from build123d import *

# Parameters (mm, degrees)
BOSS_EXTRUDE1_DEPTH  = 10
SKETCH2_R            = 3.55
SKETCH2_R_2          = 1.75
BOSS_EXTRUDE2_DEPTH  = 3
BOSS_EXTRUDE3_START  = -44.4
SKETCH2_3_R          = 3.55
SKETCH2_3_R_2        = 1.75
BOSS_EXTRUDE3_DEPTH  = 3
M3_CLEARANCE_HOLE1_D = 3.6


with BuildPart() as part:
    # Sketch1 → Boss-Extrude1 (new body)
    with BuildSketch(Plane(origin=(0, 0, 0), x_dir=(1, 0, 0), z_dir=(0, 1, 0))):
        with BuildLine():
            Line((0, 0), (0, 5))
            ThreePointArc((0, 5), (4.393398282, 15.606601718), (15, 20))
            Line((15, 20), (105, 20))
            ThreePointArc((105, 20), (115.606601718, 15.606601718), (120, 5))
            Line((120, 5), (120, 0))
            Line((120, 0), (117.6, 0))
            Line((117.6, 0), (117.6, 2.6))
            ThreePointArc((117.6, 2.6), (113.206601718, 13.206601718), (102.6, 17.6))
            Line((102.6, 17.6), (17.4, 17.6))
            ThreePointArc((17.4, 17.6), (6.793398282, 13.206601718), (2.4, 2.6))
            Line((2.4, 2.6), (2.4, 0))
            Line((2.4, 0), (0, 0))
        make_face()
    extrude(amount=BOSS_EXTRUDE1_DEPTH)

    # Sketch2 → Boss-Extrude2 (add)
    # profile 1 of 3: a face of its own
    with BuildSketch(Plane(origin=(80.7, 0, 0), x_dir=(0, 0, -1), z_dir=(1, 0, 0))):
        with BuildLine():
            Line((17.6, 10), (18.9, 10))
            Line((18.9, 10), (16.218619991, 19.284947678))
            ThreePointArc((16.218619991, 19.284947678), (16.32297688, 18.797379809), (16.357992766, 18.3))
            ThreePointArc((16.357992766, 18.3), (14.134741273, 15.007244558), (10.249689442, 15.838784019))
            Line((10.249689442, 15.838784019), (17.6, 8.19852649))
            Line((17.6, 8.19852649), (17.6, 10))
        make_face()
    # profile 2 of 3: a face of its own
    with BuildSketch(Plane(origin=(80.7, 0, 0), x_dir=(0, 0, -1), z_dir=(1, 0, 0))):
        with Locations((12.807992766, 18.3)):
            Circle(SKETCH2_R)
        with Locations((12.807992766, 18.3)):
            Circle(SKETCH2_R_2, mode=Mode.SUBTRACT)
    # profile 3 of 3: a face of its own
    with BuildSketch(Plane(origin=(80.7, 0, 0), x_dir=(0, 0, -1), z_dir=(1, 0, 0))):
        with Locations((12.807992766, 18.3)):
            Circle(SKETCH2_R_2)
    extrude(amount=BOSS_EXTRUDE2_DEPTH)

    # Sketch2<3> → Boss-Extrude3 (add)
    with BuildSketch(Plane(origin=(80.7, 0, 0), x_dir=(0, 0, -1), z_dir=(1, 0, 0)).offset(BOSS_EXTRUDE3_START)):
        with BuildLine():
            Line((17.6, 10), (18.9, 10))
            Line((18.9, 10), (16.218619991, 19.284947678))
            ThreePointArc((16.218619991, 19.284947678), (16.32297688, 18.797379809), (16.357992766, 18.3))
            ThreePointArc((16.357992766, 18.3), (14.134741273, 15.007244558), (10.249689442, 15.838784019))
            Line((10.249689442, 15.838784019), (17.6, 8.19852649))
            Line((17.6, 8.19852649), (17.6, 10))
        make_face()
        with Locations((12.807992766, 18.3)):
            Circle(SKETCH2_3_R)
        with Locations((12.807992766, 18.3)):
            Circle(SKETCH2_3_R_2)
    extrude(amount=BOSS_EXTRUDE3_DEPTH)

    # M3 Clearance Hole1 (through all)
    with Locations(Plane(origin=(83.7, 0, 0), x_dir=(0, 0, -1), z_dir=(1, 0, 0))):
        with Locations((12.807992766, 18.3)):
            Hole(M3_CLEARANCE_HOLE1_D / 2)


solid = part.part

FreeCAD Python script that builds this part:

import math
import FreeCAD as App
import Part
import Sketcher

V = App.Vector
Q = App.Units.Quantity

doc = App.newDocument("Part")
params = doc.addObject("Spreadsheet::Sheet", "Params")
for row, (alias, value) in enumerate([
    ("sketch1_radius", "15 mm"),
    ("sketch1_width", "90 mm"),
    ("sketch1_height", "5 mm"),
    ("sketch1_width2", "2.4 mm"),
    ("sketch1_height2", "2.6 mm"),
    ("pad1_length", "10 mm"),
    ("sketch2_radius", "3.55 mm"),
    ("sketch2_height", "1.3 mm"),
    ("pad2_length", "3 mm"),
    ("sketch3_radius", "3.55 mm"),
    ("sketch3_height", "1.3 mm"),
    ("pad3_length", "3 mm"),
    ("sketch4_diameter", "3.6 mm"),
    ("hole_diameter", "3.6 mm"),
], start=1):
    params.set(f"A{row}", alias)
    params.set(f"B{row}", "=" + value)
    params.setAlias(f"B{row}", alias)

body = doc.addObject("PartDesign::Body", "Body")

sketch1 = body.newObject("Sketcher::SketchObject", "Sketch")
sketch1.AttachmentSupport = (doc.getObject("XZ_Plane"), [""])
sketch1.MapMode = "FlatFace"
sketch1.addGeometry([
    Part.LineSegment(V(0, -5, 0), V(0, 0, 0)),
    Part.LineSegment(V(0, 0, 0), V(2.4, 0, 0)),
    Part.LineSegment(V(2.4, 0, 0), V(2.4, -2.6, 0)),
    Part.ArcOfCircle(Part.Circle(V(17.4, -2.6, 0), V(0, 0, 1), 15), math.radians(180), math.radians(270)),
    Part.LineSegment(V(17.4, -17.6, 0), V(102.6, -17.6, 0)),
    Part.ArcOfCircle(Part.Circle(V(102.6, -2.6, 0), V(0, 0, 1), 15), math.radians(-90), math.radians(0)),
    Part.LineSegment(V(117.6, -2.6, 0), V(117.6, 0, 0)),
    Part.LineSegment(V(117.6, 0, 0), V(120, 0, 0)),
    Part.LineSegment(V(120, 0, 0), V(120, -5, 0)),
    Part.ArcOfCircle(Part.Circle(V(105, -5, 0), V(0, 0, 1), 15), math.radians(-90), math.radians(0)),
    Part.LineSegment(V(105, -20, 0), V(15, -20, 0)),
    Part.ArcOfCircle(Part.Circle(V(15, -5, 0), V(0, 0, 1), 15), math.radians(180), math.radians(270)),
], False)
sketch1.addConstraint([
    Sketcher.Constraint("Coincident", 0, 2, 1, 1),
    Sketcher.Constraint("Coincident", 1, 2, 2, 1),
    Sketcher.Constraint("Tangent", 2, 2, 3, 1),
    Sketcher.Constraint("Tangent", 3, 2, 4, 1),
    Sketcher.Constraint("Tangent", 4, 2, 5, 1),
    Sketcher.Constraint("Tangent", 5, 2, 6, 1),
    Sketcher.Constraint("Coincident", 6, 2, 7, 1),
    Sketcher.Constraint("Coincident", 7, 2, 8, 1),
    Sketcher.Constraint("Tangent", 8, 2, 9, 2),
    Sketcher.Constraint("Tangent", 9, 1, 10, 1),
    Sketcher.Constraint("Tangent", 10, 2, 11, 2),
    Sketcher.Constraint("Tangent", 11, 1, 0, 1),
    Sketcher.Constraint("Vertical", 0),
    Sketcher.Constraint("Horizontal", 1),
    Sketcher.Constraint("Vertical", 2),
    Sketcher.Constraint("Horizontal", 4),
    Sketcher.Constraint("Vertical", 6),
    Sketcher.Constraint("Horizontal", 7),
    Sketcher.Constraint("Vertical", 8),
    Sketcher.Constraint("Horizontal", 10),
    Sketcher.Constraint("Coincident", 0, 2, -1, 1),
    Sketcher.Constraint("Equal", 3, 5),
    Sketcher.Constraint("Equal", 5, 9),
    Sketcher.Constraint("Equal", 9, 11),
    Sketcher.Constraint("PointOnObject", 6, 2, -1),
    Sketcher.Constraint("Equal", 1, 7),
    Sketcher.Constraint("Radius", 3, Q("15 mm")),
    Sketcher.Constraint("DistanceX", 10, 2, 10, 1, Q("90 mm")),
    Sketcher.Constraint("DistanceY", 0, 1, 0, 2, Q("5 mm")),
    Sketcher.Constraint("DistanceX", 1, 1, 1, 2, Q("2.4 mm")),
    Sketcher.Constraint("DistanceY", 2, 2, 2, 1, Q("2.6 mm")),
])
sketch1.setExpression("Constraints[26]", "Params.sketch1_radius")
sketch1.setExpression("Constraints[27]", "Params.sketch1_width")
sketch1.setExpression("Constraints[28]", "Params.sketch1_height")
sketch1.setExpression("Constraints[29]", "Params.sketch1_width2")
sketch1.setExpression("Constraints[30]", "Params.sketch1_height2")
pad1 = body.newObject("PartDesign::Pad", "Pad")
pad1.Profile = sketch1
pad1.setExpression("Length", "Params.pad1_length")
pad1.Reversed = True

sketch2 = body.newObject("Sketcher::SketchObject", "Sketch001")
sketch2.AttachmentSupport = (doc.getObject("YZ_Plane"), [""])
sketch2.MapMode = "FlatFace"
sketch2.AttachmentOffset = App.Placement(V(0, 0, 80.7), App.Rotation())
sketch2.addGeometry([
    Part.LineSegment(V(10, -17.6, 0), V(10, -18.9, 0)),
    Part.LineSegment(V(10, -18.9, 0), V(19.3, -16.2, 0)),
    Part.ArcOfCircle(Part.Circle(V(18.3, -12.8, 0), V(0, 0, 1), 3.5), math.radians(-74), math.radians(134)),
    Part.LineSegment(V(15.8, -10.2, 0), V(8.2, -17.6, 0)),
    Part.LineSegment(V(8.2, -17.6, 0), V(10, -17.6, 0)),
], False)
sketch2.addConstraint([
    Sketcher.Constraint("Coincident", 0, 2, 1, 1),
    Sketcher.Constraint("Tangent", 1, 2, 2, 1),
    Sketcher.Constraint("Tangent", 2, 2, 3, 1),
    Sketcher.Constraint("Coincident", 3, 2, 4, 1),
    Sketcher.Constraint("Coincident", 4, 2, 0, 1),
    Sketcher.Constraint("Vertical", 0),
    Sketcher.Constraint("Horizontal", 4),
    Sketcher.Constraint("Radius", 2, Q("3.55 mm")),
    Sketcher.Constraint("DistanceY", 0, 2, 0, 1, Q("1.3 mm")),
    Sketcher.Constraint("DistanceX", -1, 1, 0, 2, Q("10 mm")),
    Sketcher.Constraint("DistanceX", -1, 1, 2, 3, Q("18.3 mm")),
    Sketcher.Constraint("DistanceY", 0, 2, -1, 1, Q("18.9 mm")),
    Sketcher.Constraint("Distance", 1, Q("9.66437 mm")),
    Sketcher.Constraint("DistanceX", 4, 1, 4, 2, Q("1.801474 mm")),
])
sketch2.setExpression("Constraints[7]", "Params.sketch2_radius")
sketch2.setExpression("Constraints[8]", "Params.sketch2_height")
pad2 = body.newObject("PartDesign::Pad", "Pad001")
pad2.Profile = sketch2
pad2.setExpression("Length", "Params.pad2_length")

sketch3 = body.newObject("Sketcher::SketchObject", "Sketch002")
sketch3.AttachmentSupport = (doc.getObject("YZ_Plane"), [""])
sketch3.MapMode = "FlatFace"
sketch3.AttachmentOffset = App.Placement(V(0, 0, 36.3), App.Rotation())
sketch3.addGeometry([
    Part.LineSegment(V(10, -17.6, 0), V(10, -18.9, 0)),
    Part.LineSegment(V(10, -18.9, 0), V(19.3, -16.2, 0)),
    Part.ArcOfCircle(Part.Circle(V(18.3, -12.8, 0), V(0, 0, 1), 3.5), math.radians(-74), math.radians(134)),
    Part.LineSegment(V(15.8, -10.2, 0), V(8.2, -17.6, 0)),
    Part.LineSegment(V(8.2, -17.6, 0), V(10, -17.6, 0)),
], False)
sketch3.addConstraint([
    Sketcher.Constraint("Coincident", 0, 2, 1, 1),
    Sketcher.Constraint("Tangent", 1, 2, 2, 1),
    Sketcher.Constraint("Tangent", 2, 2, 3, 1),
    Sketcher.Constraint("Coincident", 3, 2, 4, 1),
    Sketcher.Constraint("Coincident", 4, 2, 0, 1),
    Sketcher.Constraint("Vertical", 0),
    Sketcher.Constraint("Horizontal", 4),
    Sketcher.Constraint("Radius", 2, Q("3.55 mm")),
    Sketcher.Constraint("DistanceY", 0, 2, 0, 1, Q("1.3 mm")),
    Sketcher.Constraint("DistanceX", -1, 1, 0, 2, Q("10 mm")),
    Sketcher.Constraint("DistanceX", -1, 1, 2, 3, Q("18.3 mm")),
    Sketcher.Constraint("DistanceY", 0, 2, -1, 1, Q("18.9 mm")),
    Sketcher.Constraint("Distance", 1, Q("9.66437 mm")),
    Sketcher.Constraint("DistanceX", 4, 1, 4, 2, Q("1.801474 mm")),
])
sketch3.setExpression("Constraints[7]", "Params.sketch3_radius")
sketch3.setExpression("Constraints[8]", "Params.sketch3_height")
pad3 = body.newObject("PartDesign::Pad", "Pad002")
pad3.Profile = sketch3
pad3.setExpression("Length", "Params.pad3_length")

sketch4 = body.newObject("Sketcher::SketchObject", "Sketch003")
sketch4.AttachmentSupport = (doc.getObject("YZ_Plane"), [""])
sketch4.MapMode = "FlatFace"
sketch4.AttachmentOffset = App.Placement(V(0, 0, 83.7), App.Rotation())
sketch4.addGeometry(Part.Circle(V(18.3, -12.8, 0), V(0, 0, 1), 1.8), False)
sketch4.addConstraint([
    Sketcher.Constraint("Diameter", 0, Q("3.6 mm")),
    Sketcher.Constraint("DistanceX", -1, 1, 0, 3, Q("18.3 mm")),
    Sketcher.Constraint("DistanceY", 0, 3, -1, 1, Q("12.807993 mm")),
])
sketch4.setExpression("Constraints[0]", "Params.sketch4_diameter")
doc.recompute()
hole = body.newObject("PartDesign::Hole", "Hole")
hole.Profile = sketch4
hole.ThreadType = "None"
hole.setExpression("Diameter", "Params.hole_diameter")
hole.DepthType = "ThroughAll"

doc.recompute()
